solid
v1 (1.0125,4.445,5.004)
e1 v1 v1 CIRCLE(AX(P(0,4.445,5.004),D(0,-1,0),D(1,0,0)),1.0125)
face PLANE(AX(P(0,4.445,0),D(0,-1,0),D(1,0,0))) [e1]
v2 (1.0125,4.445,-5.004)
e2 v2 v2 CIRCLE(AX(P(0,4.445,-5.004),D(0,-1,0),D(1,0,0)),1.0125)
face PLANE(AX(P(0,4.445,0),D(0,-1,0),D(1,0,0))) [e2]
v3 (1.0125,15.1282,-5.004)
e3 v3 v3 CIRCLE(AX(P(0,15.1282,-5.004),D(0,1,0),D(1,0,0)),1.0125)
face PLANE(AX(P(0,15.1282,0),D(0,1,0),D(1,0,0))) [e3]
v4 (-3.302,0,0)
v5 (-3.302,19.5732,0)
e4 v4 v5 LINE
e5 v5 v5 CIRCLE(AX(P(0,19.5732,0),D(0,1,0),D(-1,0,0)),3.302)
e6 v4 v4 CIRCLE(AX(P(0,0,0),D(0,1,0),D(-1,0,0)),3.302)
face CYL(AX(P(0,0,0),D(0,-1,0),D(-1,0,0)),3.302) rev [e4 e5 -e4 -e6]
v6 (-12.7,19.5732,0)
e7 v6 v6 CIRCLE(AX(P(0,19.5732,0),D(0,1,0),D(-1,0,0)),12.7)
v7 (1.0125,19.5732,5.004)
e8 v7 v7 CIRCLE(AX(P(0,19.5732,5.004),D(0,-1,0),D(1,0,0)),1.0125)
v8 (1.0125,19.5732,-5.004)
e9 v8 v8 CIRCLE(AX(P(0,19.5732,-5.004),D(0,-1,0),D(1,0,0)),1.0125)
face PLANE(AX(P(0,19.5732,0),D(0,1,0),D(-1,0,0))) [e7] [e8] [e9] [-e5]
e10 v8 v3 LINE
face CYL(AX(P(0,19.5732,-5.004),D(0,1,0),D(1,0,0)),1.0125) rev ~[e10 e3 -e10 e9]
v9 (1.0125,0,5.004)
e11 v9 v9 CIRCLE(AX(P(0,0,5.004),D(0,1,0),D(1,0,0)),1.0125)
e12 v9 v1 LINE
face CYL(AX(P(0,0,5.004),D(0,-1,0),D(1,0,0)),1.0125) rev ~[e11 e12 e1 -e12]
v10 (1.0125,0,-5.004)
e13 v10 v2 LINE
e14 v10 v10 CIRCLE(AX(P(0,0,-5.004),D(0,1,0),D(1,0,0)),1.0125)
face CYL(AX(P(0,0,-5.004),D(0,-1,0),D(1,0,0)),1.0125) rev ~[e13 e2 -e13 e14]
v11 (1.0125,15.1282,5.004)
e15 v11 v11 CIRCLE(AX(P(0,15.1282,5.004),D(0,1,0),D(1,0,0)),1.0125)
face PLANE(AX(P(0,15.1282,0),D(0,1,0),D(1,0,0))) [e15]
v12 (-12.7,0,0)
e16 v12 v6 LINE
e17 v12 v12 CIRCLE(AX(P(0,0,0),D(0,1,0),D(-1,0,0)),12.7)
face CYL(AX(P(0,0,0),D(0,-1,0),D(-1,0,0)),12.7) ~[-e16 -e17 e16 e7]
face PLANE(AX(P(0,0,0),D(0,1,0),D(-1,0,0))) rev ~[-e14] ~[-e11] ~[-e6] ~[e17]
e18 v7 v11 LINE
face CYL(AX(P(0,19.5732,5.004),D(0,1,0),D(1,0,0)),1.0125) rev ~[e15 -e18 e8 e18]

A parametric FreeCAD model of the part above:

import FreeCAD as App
import Part
import Sketcher
from FreeCAD import Vector
Q = App.Units.Quantity

doc = App.newDocument("Part")
body = doc.addObject("PartDesign::Body", "Body")

# Sketch on XZ plane
sketch1 = doc.addObject("Sketcher::SketchObject", "Sketch")
body.addObject(sketch1)
sketch1.AttachmentSupport = (doc.XZ_Plane, [""])
sketch1.MapMode = "FlatFace"
sketch1.addGeometry([
    Part.Circle(Vector(0, 0, 0), Vector(0, 0, 1), 12.7),
    Part.Circle(Vector(0, 0, 0), Vector(0, 0, 1), 3.3),
], False)
sketch1.addConstraint([
    Sketcher.Constraint("Coincident", 0, 3, -1, 1),
    Sketcher.Constraint("Coincident", 1, 3, -1, 1),
    Sketcher.Constraint("Diameter", 0, Q("1 in")),
    Sketcher.Constraint("Diameter", 1, Q("0.26 in")),
])
pad1 = doc.addObject("PartDesign::Pad", "Pad")
body.addObject(pad1)
pad1.Profile = sketch1
pad1.Length = Q("0.7705984 in")
pad1.Reversed = True

# Sketch on XZ plane
sketch2 = doc.addObject("Sketcher::SketchObject", "Sketch001")
body.addObject(sketch2)
sketch2.AttachmentSupport = (doc.XZ_Plane, [""])
sketch2.MapMode = "FlatFace"
sketch2.AttachmentOffset = App.Placement(Vector(0, 0, -0.7705984 * 25.4), App.Rotation())
sketch2.addGeometry([
    Part.Circle(Vector(0, 5, 0), Vector(0, 0, 1), 1),
    Part.Circle(Vector(0, -5, 0), Vector(0, 0, 1), 1),
], False)
sketch2.addConstraint([
    Sketcher.Constraint("Equal", 0, 1),
    Sketcher.Constraint("Symmetric", 0, 3, 1, 3, -1, 1),
    Sketcher.Constraint("PointOnObject", 0, 3, -2),
    Sketcher.Constraint("Diameter", 0, 2.025),
    Sketcher.Constraint("DistanceY", -1, 1, 0, 3, Q("0.197 in")),
])
pocket1 = doc.addObject("PartDesign::Pocket", "Pocket")
body.addObject(pocket1)
pocket1.Profile = sketch2
pocket1.Length = Q("0.175 in")
pocket1.Reversed = True

# Sketch on XZ plane
sketch3 = doc.addObject("Sketcher::SketchObject", "Sketch002")
body.addObject(sketch3)
sketch3.AttachmentSupport = (doc.XZ_Plane, [""])
sketch3.MapMode = "FlatFace"
sketch3.addGeometry([
    Part.Circle(Vector(0, 5, 0), Vector(0, 0, 1), 1),
    Part.Circle(Vector(0, -5, 0), Vector(0, 0, 1), 1),
], False)
sketch3.addConstraint([
    Sketcher.Constraint("Equal", 0, 1),
    Sketcher.Constraint("Symmetric", 0, 3, 1, 3, -1, 1),
    Sketcher.Constraint("PointOnObject", 0, 3, -2),
    Sketcher.Constraint("Diameter", 0, 2.025),
    Sketcher.Constraint("DistanceY", -1, 1, 0, 3, Q("0.197 in")),
])
pocket2 = doc.addObject("PartDesign::Pocket", "Pocket001")
body.addObject(pocket2)
pocket2.Profile = sketch3
pocket2.Length = Q("0.175 in")

doc.recompute()
